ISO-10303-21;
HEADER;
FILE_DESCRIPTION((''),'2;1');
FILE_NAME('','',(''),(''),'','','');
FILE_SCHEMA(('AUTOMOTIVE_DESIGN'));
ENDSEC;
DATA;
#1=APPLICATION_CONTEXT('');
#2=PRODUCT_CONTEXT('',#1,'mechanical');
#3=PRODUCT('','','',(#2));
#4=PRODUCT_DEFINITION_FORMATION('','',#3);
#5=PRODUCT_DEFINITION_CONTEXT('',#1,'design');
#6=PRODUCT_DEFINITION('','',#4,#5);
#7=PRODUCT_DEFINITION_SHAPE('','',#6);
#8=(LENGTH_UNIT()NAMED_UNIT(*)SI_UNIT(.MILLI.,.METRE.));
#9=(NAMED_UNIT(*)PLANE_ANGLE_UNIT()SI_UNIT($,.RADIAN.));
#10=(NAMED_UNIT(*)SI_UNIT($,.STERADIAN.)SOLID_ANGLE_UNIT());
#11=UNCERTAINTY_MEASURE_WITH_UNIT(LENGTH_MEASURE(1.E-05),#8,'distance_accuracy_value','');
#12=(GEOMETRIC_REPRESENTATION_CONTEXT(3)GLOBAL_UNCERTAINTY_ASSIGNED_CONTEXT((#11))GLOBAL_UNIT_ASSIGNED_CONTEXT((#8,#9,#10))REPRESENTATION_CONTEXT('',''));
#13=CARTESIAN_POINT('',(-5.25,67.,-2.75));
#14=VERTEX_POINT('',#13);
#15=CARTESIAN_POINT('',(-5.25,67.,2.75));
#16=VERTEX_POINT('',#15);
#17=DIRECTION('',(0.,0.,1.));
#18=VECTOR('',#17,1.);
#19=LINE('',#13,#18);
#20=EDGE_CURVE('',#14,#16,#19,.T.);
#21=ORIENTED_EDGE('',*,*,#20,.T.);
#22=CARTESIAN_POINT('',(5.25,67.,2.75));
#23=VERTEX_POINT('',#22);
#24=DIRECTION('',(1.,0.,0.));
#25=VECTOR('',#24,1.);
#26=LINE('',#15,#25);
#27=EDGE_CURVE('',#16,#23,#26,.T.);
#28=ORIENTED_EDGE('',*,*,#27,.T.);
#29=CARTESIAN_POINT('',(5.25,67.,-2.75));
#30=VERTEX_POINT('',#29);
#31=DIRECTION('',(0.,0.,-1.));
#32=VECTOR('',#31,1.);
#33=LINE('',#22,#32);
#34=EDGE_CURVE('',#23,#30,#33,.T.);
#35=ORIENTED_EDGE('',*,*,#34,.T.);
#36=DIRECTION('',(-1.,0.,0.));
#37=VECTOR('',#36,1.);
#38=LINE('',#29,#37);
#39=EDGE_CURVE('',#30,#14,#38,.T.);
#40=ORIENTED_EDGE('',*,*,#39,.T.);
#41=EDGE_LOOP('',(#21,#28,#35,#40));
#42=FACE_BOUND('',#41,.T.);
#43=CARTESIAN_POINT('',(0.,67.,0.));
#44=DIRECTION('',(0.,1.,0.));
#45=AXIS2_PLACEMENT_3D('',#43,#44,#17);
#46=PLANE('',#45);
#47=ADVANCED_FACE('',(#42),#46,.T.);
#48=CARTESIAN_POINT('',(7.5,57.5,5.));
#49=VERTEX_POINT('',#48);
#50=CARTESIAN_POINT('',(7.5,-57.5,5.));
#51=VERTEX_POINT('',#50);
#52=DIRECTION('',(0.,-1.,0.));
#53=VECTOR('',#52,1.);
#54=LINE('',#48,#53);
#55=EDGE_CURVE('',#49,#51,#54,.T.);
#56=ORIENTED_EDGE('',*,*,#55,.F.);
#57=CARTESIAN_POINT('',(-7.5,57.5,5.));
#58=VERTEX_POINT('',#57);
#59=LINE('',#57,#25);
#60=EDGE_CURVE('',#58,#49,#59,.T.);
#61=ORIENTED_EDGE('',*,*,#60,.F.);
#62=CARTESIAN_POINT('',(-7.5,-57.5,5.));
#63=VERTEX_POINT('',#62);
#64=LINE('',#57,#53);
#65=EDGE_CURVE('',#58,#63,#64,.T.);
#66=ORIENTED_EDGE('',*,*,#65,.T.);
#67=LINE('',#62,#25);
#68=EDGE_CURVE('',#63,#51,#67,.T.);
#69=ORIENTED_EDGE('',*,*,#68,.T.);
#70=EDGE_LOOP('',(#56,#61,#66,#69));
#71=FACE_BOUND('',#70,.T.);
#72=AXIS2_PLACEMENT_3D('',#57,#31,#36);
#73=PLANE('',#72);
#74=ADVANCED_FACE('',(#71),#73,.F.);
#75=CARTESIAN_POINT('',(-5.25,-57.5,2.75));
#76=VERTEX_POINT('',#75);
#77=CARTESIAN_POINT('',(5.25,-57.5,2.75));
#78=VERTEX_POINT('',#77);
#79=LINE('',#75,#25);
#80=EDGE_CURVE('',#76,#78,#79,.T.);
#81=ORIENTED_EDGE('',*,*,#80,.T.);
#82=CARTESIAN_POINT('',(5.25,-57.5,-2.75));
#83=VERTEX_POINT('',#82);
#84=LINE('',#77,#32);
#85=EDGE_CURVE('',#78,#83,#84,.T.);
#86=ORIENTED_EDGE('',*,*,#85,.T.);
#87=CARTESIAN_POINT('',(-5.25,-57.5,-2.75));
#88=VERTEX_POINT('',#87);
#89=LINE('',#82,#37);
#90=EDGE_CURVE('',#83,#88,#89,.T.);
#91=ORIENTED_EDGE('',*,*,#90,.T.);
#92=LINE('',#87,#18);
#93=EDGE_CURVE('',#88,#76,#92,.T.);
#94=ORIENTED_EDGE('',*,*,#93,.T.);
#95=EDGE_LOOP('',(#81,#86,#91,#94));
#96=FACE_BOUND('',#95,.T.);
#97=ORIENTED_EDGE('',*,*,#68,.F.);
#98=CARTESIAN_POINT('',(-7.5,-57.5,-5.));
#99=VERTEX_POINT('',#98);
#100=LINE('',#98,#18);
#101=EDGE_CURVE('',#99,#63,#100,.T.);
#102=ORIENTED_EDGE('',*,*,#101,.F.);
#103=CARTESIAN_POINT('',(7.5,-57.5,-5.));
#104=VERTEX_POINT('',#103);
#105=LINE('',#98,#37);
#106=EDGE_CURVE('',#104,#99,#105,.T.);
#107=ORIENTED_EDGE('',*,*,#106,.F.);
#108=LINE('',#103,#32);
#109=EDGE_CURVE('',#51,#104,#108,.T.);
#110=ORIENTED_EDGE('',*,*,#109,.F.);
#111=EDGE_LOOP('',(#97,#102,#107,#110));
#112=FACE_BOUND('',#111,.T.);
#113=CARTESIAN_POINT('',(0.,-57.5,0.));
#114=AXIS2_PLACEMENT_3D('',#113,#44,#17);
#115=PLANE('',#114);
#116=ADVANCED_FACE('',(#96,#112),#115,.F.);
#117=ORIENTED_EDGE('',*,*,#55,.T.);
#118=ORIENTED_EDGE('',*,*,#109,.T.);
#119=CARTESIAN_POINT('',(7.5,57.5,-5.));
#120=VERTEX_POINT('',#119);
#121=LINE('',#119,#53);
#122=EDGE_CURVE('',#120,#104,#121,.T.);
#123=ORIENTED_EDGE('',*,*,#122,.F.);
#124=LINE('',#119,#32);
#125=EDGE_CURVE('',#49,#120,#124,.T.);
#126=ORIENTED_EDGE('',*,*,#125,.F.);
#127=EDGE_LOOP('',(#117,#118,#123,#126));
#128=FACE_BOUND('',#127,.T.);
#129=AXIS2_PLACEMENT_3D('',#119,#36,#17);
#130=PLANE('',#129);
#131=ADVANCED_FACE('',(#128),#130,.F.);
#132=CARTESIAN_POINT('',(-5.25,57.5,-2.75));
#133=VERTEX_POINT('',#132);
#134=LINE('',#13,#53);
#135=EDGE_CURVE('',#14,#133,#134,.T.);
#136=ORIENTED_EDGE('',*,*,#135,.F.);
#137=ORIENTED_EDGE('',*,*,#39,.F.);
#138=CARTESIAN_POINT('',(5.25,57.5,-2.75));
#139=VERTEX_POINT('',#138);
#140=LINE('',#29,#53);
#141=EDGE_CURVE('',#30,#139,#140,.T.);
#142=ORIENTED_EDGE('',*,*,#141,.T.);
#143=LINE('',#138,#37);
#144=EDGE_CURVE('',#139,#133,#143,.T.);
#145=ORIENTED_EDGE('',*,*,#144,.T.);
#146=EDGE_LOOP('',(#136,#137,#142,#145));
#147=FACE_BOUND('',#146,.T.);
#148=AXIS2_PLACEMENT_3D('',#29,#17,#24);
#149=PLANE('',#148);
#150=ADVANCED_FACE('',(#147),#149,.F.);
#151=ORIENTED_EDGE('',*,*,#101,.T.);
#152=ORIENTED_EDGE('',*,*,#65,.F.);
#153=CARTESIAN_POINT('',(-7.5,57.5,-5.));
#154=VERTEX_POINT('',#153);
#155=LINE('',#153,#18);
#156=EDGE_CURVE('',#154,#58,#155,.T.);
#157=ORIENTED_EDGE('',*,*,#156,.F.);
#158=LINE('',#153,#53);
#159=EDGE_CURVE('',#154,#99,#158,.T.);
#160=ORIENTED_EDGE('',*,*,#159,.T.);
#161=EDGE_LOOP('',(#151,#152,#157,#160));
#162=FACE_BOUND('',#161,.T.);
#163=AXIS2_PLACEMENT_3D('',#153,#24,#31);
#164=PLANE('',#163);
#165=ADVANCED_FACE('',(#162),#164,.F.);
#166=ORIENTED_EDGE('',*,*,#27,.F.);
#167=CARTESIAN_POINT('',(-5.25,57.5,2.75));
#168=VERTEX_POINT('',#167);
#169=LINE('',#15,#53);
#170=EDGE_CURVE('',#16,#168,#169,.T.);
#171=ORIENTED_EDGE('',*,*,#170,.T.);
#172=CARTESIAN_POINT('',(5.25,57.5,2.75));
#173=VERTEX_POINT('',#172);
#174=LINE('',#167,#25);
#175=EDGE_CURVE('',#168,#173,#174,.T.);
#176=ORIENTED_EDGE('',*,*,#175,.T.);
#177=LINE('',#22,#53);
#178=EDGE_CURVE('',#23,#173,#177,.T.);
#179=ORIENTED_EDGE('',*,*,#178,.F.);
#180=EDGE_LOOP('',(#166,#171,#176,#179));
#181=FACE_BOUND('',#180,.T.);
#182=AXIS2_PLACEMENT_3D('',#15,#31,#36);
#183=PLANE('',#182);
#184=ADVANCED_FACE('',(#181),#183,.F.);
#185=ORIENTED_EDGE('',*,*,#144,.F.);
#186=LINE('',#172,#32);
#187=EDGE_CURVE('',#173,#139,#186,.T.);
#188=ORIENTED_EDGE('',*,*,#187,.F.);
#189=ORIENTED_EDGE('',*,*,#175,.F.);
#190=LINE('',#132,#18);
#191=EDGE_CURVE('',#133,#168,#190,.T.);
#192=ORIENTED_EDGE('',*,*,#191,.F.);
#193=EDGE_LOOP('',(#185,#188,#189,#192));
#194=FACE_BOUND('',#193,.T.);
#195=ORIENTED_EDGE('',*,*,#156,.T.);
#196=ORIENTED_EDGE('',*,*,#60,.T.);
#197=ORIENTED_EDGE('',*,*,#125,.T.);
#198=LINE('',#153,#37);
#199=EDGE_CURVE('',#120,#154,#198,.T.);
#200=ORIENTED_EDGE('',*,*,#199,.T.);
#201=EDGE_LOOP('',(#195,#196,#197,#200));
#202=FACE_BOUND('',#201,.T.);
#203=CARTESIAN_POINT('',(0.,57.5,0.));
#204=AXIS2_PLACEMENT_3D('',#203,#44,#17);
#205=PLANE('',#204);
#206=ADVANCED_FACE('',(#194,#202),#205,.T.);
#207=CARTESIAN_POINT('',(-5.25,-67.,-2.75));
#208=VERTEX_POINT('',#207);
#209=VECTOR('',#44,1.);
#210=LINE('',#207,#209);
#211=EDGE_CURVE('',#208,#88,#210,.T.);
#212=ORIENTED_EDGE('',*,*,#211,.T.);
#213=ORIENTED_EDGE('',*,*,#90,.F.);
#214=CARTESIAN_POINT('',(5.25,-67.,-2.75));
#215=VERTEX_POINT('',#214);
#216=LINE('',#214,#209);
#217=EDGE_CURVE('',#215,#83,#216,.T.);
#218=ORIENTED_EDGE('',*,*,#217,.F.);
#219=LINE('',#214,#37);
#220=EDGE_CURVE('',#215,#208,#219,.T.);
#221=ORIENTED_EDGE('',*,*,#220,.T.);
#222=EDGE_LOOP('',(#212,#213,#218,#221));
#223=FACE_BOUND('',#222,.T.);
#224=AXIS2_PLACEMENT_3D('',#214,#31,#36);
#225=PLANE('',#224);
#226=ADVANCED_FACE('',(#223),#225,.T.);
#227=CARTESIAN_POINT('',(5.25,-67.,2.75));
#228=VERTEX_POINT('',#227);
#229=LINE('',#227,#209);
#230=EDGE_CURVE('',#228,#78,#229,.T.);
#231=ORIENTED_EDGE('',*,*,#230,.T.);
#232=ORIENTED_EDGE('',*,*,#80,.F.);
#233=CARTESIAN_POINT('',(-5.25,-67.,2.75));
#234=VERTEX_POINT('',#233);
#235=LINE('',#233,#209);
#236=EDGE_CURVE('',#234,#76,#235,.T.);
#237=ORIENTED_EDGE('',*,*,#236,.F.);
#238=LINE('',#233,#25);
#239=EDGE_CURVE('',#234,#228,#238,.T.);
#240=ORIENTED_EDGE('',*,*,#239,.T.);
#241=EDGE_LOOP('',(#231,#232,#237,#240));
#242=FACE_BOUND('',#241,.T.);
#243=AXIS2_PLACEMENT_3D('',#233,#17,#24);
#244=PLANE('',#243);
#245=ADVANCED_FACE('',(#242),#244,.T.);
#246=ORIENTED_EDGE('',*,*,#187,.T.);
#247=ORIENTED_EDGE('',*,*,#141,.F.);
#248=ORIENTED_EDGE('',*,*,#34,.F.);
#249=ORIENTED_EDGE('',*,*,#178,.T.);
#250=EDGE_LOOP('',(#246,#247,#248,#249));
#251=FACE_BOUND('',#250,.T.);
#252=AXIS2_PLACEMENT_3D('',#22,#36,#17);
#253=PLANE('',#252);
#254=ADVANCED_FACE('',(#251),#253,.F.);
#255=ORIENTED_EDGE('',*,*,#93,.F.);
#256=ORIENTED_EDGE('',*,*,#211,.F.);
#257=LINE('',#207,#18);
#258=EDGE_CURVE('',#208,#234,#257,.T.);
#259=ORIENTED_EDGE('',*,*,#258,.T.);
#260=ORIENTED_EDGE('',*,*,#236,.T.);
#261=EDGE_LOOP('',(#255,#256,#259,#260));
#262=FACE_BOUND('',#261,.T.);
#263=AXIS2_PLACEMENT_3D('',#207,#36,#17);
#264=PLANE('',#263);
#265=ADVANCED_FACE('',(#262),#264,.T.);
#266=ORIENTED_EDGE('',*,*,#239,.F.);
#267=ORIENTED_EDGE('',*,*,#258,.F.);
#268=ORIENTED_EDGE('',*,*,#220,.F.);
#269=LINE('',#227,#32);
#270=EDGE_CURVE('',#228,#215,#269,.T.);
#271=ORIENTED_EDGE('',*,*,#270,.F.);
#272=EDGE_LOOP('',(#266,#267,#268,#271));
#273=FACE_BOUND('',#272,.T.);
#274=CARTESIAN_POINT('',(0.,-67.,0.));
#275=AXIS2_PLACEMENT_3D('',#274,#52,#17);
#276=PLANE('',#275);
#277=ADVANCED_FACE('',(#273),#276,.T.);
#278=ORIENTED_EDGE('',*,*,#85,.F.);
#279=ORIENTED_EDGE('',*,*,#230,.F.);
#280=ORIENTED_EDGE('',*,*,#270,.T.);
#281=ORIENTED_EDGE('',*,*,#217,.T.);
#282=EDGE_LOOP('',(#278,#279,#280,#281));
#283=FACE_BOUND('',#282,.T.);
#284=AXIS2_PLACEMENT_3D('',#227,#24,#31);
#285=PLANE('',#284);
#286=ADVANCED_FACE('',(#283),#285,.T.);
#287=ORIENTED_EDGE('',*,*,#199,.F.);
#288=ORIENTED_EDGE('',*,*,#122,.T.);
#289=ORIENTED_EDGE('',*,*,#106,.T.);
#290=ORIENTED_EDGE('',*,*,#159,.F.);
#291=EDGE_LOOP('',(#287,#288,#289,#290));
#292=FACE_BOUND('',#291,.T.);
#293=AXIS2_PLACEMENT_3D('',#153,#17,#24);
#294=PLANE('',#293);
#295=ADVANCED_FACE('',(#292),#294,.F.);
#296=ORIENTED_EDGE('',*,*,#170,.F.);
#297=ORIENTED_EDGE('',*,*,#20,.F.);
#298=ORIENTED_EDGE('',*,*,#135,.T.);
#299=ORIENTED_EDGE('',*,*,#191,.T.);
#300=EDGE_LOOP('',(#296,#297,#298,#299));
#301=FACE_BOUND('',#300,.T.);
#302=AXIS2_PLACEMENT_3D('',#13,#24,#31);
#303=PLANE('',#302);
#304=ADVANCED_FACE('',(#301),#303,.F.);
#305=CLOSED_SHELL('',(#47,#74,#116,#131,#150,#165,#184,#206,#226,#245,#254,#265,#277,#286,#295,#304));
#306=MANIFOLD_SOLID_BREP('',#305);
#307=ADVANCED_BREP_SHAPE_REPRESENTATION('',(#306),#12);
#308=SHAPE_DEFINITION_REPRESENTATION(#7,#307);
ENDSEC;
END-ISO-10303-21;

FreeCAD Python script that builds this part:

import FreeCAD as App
import Part
import Sketcher

V = App.Vector
Q = App.Units.Quantity


def add_polygon(sketch, points):
    """Adds a closed chain of lines whose ends are joined by coincident constraints."""
    first, n = sketch.GeometryCount, len(points)
    for a, b in zip(points, points[1:] + points[:1]):
        sketch.addGeometry(Part.LineSegment(App.Vector(*a, 0), App.Vector(*b, 0)), False)
    for i in range(n):
        sketch.addConstraint(Sketcher.Constraint("Coincident", first + i, 2, first + (i + 1) % n, 1))

doc = App.newDocument("Part")
body = doc.addObject("PartDesign::Body", "Body")

sketch1 = doc.addObject("Sketcher::SketchObject", "Sketch")
body.addObject(sketch1)
sketch1.AttachmentSupport = (doc.XZ_Plane, [""])
sketch1.MapMode = "FlatFace"
add_polygon(sketch1, [(-7.5, -5), (-7.5, 5), (7.5, 5), (7.5, -5)])
sketch1.addConstraint(Sketcher.Constraint("Vertical", 0))
sketch1.addConstraint(Sketcher.Constraint("Horizontal", 1))
sketch1.addConstraint(Sketcher.Constraint("Vertical", 2))
sketch1.addConstraint(Sketcher.Constraint("Horizontal", 3))
sketch1.addConstraint(Sketcher.Constraint("Symmetric", 0, 2, 2, 2, -1, 1))
sketch1.addConstraint(Sketcher.Constraint("DistanceX", 1, 1, 1, 2, Q("15 mm")))
sketch1.addConstraint(Sketcher.Constraint("DistanceY", 0, 1, 0, 2, Q("10 mm")))
pad1 = doc.addObject("PartDesign::Pad", "Pad")
body.addObject(pad1)
pad1.Profile = sketch1
pad1.Length = 115
pad1.Midplane = True

sketch2 = doc.addObject("Sketcher::SketchObject", "Sketch001")
body.addObject(sketch2)
sketch2.AttachmentSupport = (doc.XZ_Plane, [""])
sketch2.MapMode = "FlatFace"
sketch2.AttachmentOffset = App.Placement(V(0, 0, -57.5), App.Rotation())
add_polygon(sketch2, [(-5.25, -2.75), (-5.25, 2.75), (5.25, 2.75), (5.25, -2.75)])
sketch2.addConstraint(Sketcher.Constraint("Vertical", 0))
sketch2.addConstraint(Sketcher.Constraint("Horizontal", 1))
sketch2.addConstraint(Sketcher.Constraint("Vertical", 2))
sketch2.addConstraint(Sketcher.Constraint("Horizontal", 3))
sketch2.addConstraint(Sketcher.Constraint("Symmetric", 0, 2, 2, 2, -1, 1))
sketch2.addConstraint(Sketcher.Constraint("DistanceX", 1, 1, 1, 2, Q("10.5 mm")))
sketch2.addConstraint(Sketcher.Constraint("DistanceY", 0, 1, 0, 2, Q("5.5 mm")))
pad2 = doc.addObject("PartDesign::Pad", "Pad001")
body.addObject(pad2)
pad2.Profile = sketch2
pad2.Length = 9.5
pad2.Reversed = True
doc.recompute()

mirrored = doc.addObject("PartDesign::Mirrored", "Mirrored")
body.addObject(mirrored)
mirrored.Originals = [pad2]
mirrored.MirrorPlane = (doc.XZ_Plane, [""])
body.Tip = mirrored

doc.recompute()
